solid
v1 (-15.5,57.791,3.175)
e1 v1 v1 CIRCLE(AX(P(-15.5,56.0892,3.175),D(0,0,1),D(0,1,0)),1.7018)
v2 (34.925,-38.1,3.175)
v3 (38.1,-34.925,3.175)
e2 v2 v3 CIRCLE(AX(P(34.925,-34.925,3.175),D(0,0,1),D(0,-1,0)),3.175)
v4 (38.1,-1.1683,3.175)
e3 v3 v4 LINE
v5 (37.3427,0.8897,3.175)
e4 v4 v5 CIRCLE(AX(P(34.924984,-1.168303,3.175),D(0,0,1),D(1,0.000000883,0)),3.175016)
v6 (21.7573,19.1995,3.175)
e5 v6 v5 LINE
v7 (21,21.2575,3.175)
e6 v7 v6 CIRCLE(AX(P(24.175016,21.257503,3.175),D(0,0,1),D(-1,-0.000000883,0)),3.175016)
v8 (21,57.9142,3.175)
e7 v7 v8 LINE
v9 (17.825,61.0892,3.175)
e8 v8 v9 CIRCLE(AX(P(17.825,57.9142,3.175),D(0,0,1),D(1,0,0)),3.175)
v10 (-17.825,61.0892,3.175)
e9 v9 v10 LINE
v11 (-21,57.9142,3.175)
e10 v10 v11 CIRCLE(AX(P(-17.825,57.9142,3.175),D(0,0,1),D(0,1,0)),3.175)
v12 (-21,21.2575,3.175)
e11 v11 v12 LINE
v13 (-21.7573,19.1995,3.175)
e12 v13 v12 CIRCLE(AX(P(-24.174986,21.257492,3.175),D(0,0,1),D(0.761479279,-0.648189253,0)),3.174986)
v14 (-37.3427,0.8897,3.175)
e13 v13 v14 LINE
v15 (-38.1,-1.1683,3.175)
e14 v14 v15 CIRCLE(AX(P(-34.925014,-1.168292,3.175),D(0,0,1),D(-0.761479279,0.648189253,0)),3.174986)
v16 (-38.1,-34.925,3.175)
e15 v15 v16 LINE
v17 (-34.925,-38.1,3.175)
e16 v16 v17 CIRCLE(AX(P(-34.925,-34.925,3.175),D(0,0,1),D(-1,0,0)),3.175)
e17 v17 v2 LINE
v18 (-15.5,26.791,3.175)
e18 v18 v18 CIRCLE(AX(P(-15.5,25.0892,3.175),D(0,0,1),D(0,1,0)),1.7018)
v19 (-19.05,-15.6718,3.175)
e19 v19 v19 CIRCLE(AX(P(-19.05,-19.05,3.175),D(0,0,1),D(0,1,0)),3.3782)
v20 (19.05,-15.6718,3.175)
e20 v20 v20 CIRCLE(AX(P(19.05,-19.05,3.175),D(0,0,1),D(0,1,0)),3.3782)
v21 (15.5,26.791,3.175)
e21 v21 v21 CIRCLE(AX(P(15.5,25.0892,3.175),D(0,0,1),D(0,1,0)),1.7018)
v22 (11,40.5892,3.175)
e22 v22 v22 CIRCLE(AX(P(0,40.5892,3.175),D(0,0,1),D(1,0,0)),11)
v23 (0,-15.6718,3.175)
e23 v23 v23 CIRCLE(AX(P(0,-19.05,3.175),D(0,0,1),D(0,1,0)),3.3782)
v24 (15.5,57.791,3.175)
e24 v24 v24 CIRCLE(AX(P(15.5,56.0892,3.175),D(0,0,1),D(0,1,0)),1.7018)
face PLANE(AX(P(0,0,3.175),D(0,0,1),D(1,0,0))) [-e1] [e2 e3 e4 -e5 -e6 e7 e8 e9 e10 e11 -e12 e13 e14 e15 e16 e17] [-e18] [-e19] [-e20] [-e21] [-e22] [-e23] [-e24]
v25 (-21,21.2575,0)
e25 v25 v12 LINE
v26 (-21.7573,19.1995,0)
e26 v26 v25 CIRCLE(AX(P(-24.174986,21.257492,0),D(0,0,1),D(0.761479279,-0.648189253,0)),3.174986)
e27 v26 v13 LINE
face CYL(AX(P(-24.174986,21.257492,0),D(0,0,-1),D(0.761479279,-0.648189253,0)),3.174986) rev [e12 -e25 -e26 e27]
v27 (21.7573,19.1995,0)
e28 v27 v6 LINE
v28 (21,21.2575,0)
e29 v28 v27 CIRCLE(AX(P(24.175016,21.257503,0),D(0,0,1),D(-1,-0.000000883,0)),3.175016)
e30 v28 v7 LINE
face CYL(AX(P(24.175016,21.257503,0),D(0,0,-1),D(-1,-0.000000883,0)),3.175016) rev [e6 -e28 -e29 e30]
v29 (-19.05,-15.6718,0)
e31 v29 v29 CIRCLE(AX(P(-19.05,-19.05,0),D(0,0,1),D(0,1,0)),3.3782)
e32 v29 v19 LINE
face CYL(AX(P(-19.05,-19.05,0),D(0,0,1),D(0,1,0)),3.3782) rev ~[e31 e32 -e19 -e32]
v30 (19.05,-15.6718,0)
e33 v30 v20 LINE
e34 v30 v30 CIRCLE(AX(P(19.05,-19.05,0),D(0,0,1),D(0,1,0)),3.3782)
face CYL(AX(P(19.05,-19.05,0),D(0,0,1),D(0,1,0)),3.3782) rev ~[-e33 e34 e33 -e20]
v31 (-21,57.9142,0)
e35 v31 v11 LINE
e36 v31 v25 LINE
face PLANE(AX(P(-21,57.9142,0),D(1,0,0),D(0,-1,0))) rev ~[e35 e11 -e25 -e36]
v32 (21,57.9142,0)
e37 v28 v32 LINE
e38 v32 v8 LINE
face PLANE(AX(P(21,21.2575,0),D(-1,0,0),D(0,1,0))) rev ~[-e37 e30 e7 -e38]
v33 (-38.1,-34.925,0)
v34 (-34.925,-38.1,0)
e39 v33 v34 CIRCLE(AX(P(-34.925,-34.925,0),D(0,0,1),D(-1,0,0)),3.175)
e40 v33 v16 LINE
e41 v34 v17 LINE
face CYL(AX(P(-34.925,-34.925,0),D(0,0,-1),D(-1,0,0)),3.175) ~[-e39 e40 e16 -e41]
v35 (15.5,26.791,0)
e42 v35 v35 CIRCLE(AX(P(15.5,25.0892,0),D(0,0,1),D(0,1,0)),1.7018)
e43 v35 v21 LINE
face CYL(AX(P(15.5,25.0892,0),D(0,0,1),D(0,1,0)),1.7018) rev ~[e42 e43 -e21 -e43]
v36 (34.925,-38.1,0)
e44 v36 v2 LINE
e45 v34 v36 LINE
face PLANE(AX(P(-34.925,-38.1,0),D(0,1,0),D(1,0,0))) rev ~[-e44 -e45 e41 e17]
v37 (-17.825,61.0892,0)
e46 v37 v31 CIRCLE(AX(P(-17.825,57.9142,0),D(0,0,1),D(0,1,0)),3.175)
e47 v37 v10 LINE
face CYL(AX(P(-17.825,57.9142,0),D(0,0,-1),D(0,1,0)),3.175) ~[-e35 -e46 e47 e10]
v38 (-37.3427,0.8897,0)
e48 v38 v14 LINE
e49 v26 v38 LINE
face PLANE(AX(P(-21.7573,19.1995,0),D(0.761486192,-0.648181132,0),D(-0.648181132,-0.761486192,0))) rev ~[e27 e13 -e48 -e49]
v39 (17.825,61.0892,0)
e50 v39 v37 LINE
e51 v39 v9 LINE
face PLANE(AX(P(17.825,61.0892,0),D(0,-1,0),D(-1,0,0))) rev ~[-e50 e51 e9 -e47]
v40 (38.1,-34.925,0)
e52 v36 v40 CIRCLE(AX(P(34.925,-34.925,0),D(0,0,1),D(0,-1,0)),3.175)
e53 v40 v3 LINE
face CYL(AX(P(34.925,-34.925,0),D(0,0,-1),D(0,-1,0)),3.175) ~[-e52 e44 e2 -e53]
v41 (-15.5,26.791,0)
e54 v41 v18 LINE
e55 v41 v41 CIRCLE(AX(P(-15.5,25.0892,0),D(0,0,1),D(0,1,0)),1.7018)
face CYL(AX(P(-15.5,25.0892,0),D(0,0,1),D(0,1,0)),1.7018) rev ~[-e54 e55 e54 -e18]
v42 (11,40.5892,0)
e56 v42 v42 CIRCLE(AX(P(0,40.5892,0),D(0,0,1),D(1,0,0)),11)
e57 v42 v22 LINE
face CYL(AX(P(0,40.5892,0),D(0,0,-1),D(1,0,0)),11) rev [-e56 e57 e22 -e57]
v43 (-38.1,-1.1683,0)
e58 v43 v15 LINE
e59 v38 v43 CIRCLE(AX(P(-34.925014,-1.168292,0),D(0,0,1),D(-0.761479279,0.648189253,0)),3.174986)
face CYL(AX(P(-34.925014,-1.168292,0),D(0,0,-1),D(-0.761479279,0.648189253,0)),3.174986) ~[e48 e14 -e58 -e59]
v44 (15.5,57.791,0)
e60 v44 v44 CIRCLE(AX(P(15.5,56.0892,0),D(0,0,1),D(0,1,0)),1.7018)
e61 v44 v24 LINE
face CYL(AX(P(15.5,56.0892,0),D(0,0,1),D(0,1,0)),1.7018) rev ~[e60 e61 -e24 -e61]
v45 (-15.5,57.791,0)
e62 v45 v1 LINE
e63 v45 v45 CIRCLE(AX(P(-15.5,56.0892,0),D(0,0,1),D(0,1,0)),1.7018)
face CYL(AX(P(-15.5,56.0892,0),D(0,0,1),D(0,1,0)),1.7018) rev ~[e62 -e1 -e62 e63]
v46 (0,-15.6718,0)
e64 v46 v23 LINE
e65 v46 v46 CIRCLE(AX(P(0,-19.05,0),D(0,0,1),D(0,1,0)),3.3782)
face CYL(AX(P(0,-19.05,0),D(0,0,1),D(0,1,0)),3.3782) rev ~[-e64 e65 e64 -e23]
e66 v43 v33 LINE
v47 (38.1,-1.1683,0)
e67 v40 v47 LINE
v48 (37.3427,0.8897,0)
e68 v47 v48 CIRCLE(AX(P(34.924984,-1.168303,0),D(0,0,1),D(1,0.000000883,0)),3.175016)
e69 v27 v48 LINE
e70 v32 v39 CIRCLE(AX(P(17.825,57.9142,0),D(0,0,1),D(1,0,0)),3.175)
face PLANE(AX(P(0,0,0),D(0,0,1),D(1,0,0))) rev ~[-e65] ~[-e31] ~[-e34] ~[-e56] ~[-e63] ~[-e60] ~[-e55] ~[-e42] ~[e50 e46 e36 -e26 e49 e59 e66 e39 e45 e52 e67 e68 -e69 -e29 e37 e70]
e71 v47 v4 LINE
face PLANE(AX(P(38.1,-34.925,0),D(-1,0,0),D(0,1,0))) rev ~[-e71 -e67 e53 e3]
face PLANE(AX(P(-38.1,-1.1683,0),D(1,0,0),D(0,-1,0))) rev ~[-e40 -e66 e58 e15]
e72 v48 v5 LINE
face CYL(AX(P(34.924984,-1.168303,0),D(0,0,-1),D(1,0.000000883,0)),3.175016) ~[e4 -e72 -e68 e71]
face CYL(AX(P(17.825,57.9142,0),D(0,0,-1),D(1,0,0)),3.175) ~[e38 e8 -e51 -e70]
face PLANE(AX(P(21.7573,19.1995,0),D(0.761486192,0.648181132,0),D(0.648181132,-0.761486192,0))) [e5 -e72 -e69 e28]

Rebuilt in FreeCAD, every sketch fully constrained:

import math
import FreeCAD as App
import Part
import Sketcher
from FreeCAD import Vector
Q = App.Units.Quantity

doc = App.newDocument("Part")
body = doc.addObject("PartDesign::Body", "Body")

# Sketch on XY plane
sketch1 = body.newObject("Sketcher::SketchObject", "Sketch")
sketch1.AttachmentSupport = (doc.getObject("XY_Plane"), [""])
sketch1.MapMode = "FlatFace"
sketch1.addGeometry([
    Part.ArcOfCircle(Part.Circle(Vector(24.175, 21.2575, 0), Vector(0, 0, 1), 3.175), math.radians(180), math.radians(220.405167)),  # 0
    Part.LineSegment(Vector(21, 21.2575, 0), Vector(21, 57.9142, 0)),  # 1
    Part.ArcOfCircle(Part.Circle(Vector(17.825, 57.9142, 0), Vector(0, 0, 1), 3.175), math.radians(0), math.radians(90)),  # 2
    Part.LineSegment(Vector(17.825, 61.0892, 0), Vector(-17.825, 61.0892, 0)),  # 3
    Part.ArcOfCircle(Part.Circle(Vector(-17.825, 57.9142, 0), Vector(0, 0, 1), 3.175), math.radians(90), math.radians(180)),  # 4
    Part.LineSegment(Vector(-21, 57.9142, 0), Vector(-21, 21.2575, 0)),  # 5
    Part.ArcOfCircle(Part.Circle(Vector(-24.175, 21.2575, 0), Vector(0, 0, 1), 3.175002), math.radians(-40.405167), math.radians(0)),  # 6
    Part.LineSegment(Vector(-21.7573, 19.1995, 0), Vector(-37.3427, 0.8897, 0)),  # 7
    Part.ArcOfCircle(Part.Circle(Vector(-34.925, -1.1683, 0), Vector(0, 0, 1), 3.175002), math.radians(139.594833), math.radians(180)),  # 8
    Part.LineSegment(Vector(-38.1, -1.1683, 0), Vector(-38.1, -34.925, 0)),  # 9
    Part.ArcOfCircle(Part.Circle(Vector(-34.925, -34.925, 0), Vector(0, 0, 1), 3.175), math.radians(180), math.radians(270)),  # 10
    Part.LineSegment(Vector(-34.925, -38.1, 0), Vector(34.925, -38.1, 0)),  # 11
    Part.ArcOfCircle(Part.Circle(Vector(34.925, -34.925, 0), Vector(0, 0, 1), 3.175), math.radians(-90), math.radians(0)),  # 12
    Part.LineSegment(Vector(38.1, -34.925, 0), Vector(38.1, -1.1683, 0)),  # 13
    Part.ArcOfCircle(Part.Circle(Vector(34.925, -1.1683, 0), Vector(0, 0, 1), 3.175), math.radians(0), math.radians(40.405167)),  # 14
    Part.LineSegment(Vector(37.3427, 0.8897, 0), Vector(21.7573, 19.1995, 0)),  # 15
    Part.Circle(Vector(0, 40.5892, 0), Vector(0, 0, 1), 11),  # 16
], False)
sketch1.addConstraint([
    Sketcher.Constraint("Tangent", 0, 1, 1, 1),
    Sketcher.Constraint("Tangent", 1, 2, 2, 1),
    Sketcher.Constraint("Tangent", 2, 2, 3, 1),
    Sketcher.Constraint("Tangent", 3, 2, 4, 1),
    Sketcher.Constraint("Tangent", 4, 2, 5, 1),
    Sketcher.Constraint("Tangent", 5, 2, 6, 2),
    Sketcher.Constraint("Tangent", 6, 1, 7, 1),
    Sketcher.Constraint("Tangent", 7, 2, 8, 1),
    Sketcher.Constraint("Tangent", 8, 2, 9, 1),
    Sketcher.Constraint("Tangent", 9, 2, 10, 1),
    Sketcher.Constraint("Tangent", 10, 2, 11, 1),
    Sketcher.Constraint("Tangent", 11, 2, 12, 1),
    Sketcher.Constraint("Tangent", 12, 2, 13, 1),
    Sketcher.Constraint("Tangent", 13, 2, 14, 1),
    Sketcher.Constraint("Tangent", 14, 2, 15, 1),
    Sketcher.Constraint("Tangent", 15, 2, 0, 2),
    Sketcher.Constraint("Vertical", 1),
    Sketcher.Constraint("Horizontal", 3),
    Sketcher.Constraint("Vertical", 5),
    Sketcher.Constraint("Vertical", 9),
    Sketcher.Constraint("Horizontal", 11),
    Sketcher.Constraint("Vertical", 13),
    Sketcher.Constraint("Equal", 0, 2),
    Sketcher.Constraint("Equal", 2, 4),
    Sketcher.Constraint("Equal", 4, 6),
    Sketcher.Constraint("Equal", 6, 8),
    Sketcher.Constraint("Equal", 8, 10),
    Sketcher.Constraint("Equal", 10, 12),
    Sketcher.Constraint("Equal", 12, 14),
    Sketcher.Constraint("Symmetric", 0, 3, 6, 3, -2),
    Sketcher.Constraint("Symmetric", 8, 3, 14, 3, -2),
    Sketcher.Constraint("PointOnObject", 16, 3, -2),
    Sketcher.Constraint("Radius", 0, Q("0.125 in")),
    Sketcher.Constraint("DistanceX", 8, 2, -1, 1, Q("1.5 in")),
    Sketcher.Constraint("DistanceY", 10, 2, -1, 1, Q("1.5 in")),
    Sketcher.Constraint("Diameter", 16, Q("22 mm")),
    Sketcher.Constraint("DistanceY", -1, 1, 16, 3, Q("1.598 in")),
    Sketcher.Constraint("DistanceY", 9, 2, 9, 1, Q("1.329 in")),
    Sketcher.Constraint("DistanceX", 4, 3, 0, 3, Q("42 mm")),
    Sketcher.Constraint("DistanceY", 1, 1, 1, 2, Q("36.6567 mm")),
    Sketcher.Constraint("DistanceY", -1, 1, 0, 3, Q("0.8369 in")),
])
pad1 = body.newObject("PartDesign::Pad", "Pad")
pad1.Profile = sketch1
pad1.Length = Q("0.125 in")

# Sketch on XY plane
sketch2 = body.newObject("Sketcher::SketchObject", "Sketch001")
sketch2.AttachmentSupport = (doc.getObject("XY_Plane"), [""])
sketch2.MapMode = "FlatFace"
sketch2.addGeometry([
    Part.Circle(Vector(0, -19.05, 0), Vector(0, 0, 1), 3.3782),
    Part.Circle(Vector(0, 40.5892, 0), Vector(0, 0, 1), 3.3782),
    Part.Circle(Vector(19.05, -19.05, 0), Vector(0, 0, 1), 3.3782),
    Part.Circle(Vector(-19.05, -19.05, 0), Vector(0, 0, 1), 3.3782),
], False)
sketch2.addConstraint([
    Sketcher.Constraint("Equal", 0, 1),
    Sketcher.Constraint("Equal", 1, 2),
    Sketcher.Constraint("Equal", 2, 3),
    Sketcher.Constraint("Symmetric", 2, 3, 3, 3, -2),
    Sketcher.Constraint("PointOnObject", 0, 3, -2),
    Sketcher.Constraint("PointOnObject", 1, 3, -2),
    Sketcher.Constraint("Horizontal", 0, 3, 2, 3),
    Sketcher.Constraint("Diameter", 0, Q("0.266 in")),
    Sketcher.Constraint("DistanceX", 3, 3, 2, 3, Q("1.5 in")),
    Sketcher.Constraint("DistanceY", 0, 3, -1, 1, Q("0.75 in")),
    Sketcher.Constraint("DistanceY", -1, 1, 1, 3, Q("1.598 in")),
])
doc.recompute()
hole = body.newObject("PartDesign::Hole", "Hole")
hole.Profile = sketch2
hole.ThreadType = "None"
hole.Diameter = Q("0.266 in")
hole.DepthType = "ThroughAll"
hole.Reversed = True

# Sketch on XY plane
sketch3 = body.newObject("Sketcher::SketchObject", "Sketch002")
sketch3.AttachmentSupport = (doc.getObject("XY_Plane"), [""])
sketch3.MapMode = "FlatFace"
sketch3.addGeometry([
    Part.Circle(Vector(-15.5, 56.0892, 0), Vector(0, 0, 1), 1.7018),
    Part.Circle(Vector(-15.5, 25.0892, 0), Vector(0, 0, 1), 1.7018),
    Part.Circle(Vector(15.5, 25.0892, 0), Vector(0, 0, 1), 1.7018),
    Part.Circle(Vector(15.5, 56.0892, 0), Vector(0, 0, 1), 1.7018),
], False)
sketch3.addConstraint([
    Sketcher.Constraint("Equal", 0, 1),
    Sketcher.Constraint("Equal", 1, 2),
    Sketcher.Constraint("Equal", 2, 3),
    Sketcher.Constraint("Symmetric", 1, 3, 2, 3, -2),
    Sketcher.Constraint("Symmetric", 0, 3, 3, 3, -2),
    Sketcher.Constraint("Vertical", 0, 3, 1, 3),
    Sketcher.Constraint("Diameter", 0, Q("0.134 in")),
    Sketcher.Constraint("DistanceX", 0, 3, -1, 1, Q("15.5 mm")),
    Sketcher.Constraint("DistanceY", -1, 1, 0, 3, Q("56.0892 mm")),
    Sketcher.Constraint("DistanceY", -1, 1, 1, 3, Q("25.0892 mm")),
])
doc.recompute()
hole2 = body.newObject("PartDesign::Hole", "Hole001")
hole2.Profile = sketch3
hole2.ThreadType = "None"
hole2.Diameter = Q("0.134 in")
hole2.DepthType = "ThroughAll"
hole2.Reversed = True

doc.recompute()
